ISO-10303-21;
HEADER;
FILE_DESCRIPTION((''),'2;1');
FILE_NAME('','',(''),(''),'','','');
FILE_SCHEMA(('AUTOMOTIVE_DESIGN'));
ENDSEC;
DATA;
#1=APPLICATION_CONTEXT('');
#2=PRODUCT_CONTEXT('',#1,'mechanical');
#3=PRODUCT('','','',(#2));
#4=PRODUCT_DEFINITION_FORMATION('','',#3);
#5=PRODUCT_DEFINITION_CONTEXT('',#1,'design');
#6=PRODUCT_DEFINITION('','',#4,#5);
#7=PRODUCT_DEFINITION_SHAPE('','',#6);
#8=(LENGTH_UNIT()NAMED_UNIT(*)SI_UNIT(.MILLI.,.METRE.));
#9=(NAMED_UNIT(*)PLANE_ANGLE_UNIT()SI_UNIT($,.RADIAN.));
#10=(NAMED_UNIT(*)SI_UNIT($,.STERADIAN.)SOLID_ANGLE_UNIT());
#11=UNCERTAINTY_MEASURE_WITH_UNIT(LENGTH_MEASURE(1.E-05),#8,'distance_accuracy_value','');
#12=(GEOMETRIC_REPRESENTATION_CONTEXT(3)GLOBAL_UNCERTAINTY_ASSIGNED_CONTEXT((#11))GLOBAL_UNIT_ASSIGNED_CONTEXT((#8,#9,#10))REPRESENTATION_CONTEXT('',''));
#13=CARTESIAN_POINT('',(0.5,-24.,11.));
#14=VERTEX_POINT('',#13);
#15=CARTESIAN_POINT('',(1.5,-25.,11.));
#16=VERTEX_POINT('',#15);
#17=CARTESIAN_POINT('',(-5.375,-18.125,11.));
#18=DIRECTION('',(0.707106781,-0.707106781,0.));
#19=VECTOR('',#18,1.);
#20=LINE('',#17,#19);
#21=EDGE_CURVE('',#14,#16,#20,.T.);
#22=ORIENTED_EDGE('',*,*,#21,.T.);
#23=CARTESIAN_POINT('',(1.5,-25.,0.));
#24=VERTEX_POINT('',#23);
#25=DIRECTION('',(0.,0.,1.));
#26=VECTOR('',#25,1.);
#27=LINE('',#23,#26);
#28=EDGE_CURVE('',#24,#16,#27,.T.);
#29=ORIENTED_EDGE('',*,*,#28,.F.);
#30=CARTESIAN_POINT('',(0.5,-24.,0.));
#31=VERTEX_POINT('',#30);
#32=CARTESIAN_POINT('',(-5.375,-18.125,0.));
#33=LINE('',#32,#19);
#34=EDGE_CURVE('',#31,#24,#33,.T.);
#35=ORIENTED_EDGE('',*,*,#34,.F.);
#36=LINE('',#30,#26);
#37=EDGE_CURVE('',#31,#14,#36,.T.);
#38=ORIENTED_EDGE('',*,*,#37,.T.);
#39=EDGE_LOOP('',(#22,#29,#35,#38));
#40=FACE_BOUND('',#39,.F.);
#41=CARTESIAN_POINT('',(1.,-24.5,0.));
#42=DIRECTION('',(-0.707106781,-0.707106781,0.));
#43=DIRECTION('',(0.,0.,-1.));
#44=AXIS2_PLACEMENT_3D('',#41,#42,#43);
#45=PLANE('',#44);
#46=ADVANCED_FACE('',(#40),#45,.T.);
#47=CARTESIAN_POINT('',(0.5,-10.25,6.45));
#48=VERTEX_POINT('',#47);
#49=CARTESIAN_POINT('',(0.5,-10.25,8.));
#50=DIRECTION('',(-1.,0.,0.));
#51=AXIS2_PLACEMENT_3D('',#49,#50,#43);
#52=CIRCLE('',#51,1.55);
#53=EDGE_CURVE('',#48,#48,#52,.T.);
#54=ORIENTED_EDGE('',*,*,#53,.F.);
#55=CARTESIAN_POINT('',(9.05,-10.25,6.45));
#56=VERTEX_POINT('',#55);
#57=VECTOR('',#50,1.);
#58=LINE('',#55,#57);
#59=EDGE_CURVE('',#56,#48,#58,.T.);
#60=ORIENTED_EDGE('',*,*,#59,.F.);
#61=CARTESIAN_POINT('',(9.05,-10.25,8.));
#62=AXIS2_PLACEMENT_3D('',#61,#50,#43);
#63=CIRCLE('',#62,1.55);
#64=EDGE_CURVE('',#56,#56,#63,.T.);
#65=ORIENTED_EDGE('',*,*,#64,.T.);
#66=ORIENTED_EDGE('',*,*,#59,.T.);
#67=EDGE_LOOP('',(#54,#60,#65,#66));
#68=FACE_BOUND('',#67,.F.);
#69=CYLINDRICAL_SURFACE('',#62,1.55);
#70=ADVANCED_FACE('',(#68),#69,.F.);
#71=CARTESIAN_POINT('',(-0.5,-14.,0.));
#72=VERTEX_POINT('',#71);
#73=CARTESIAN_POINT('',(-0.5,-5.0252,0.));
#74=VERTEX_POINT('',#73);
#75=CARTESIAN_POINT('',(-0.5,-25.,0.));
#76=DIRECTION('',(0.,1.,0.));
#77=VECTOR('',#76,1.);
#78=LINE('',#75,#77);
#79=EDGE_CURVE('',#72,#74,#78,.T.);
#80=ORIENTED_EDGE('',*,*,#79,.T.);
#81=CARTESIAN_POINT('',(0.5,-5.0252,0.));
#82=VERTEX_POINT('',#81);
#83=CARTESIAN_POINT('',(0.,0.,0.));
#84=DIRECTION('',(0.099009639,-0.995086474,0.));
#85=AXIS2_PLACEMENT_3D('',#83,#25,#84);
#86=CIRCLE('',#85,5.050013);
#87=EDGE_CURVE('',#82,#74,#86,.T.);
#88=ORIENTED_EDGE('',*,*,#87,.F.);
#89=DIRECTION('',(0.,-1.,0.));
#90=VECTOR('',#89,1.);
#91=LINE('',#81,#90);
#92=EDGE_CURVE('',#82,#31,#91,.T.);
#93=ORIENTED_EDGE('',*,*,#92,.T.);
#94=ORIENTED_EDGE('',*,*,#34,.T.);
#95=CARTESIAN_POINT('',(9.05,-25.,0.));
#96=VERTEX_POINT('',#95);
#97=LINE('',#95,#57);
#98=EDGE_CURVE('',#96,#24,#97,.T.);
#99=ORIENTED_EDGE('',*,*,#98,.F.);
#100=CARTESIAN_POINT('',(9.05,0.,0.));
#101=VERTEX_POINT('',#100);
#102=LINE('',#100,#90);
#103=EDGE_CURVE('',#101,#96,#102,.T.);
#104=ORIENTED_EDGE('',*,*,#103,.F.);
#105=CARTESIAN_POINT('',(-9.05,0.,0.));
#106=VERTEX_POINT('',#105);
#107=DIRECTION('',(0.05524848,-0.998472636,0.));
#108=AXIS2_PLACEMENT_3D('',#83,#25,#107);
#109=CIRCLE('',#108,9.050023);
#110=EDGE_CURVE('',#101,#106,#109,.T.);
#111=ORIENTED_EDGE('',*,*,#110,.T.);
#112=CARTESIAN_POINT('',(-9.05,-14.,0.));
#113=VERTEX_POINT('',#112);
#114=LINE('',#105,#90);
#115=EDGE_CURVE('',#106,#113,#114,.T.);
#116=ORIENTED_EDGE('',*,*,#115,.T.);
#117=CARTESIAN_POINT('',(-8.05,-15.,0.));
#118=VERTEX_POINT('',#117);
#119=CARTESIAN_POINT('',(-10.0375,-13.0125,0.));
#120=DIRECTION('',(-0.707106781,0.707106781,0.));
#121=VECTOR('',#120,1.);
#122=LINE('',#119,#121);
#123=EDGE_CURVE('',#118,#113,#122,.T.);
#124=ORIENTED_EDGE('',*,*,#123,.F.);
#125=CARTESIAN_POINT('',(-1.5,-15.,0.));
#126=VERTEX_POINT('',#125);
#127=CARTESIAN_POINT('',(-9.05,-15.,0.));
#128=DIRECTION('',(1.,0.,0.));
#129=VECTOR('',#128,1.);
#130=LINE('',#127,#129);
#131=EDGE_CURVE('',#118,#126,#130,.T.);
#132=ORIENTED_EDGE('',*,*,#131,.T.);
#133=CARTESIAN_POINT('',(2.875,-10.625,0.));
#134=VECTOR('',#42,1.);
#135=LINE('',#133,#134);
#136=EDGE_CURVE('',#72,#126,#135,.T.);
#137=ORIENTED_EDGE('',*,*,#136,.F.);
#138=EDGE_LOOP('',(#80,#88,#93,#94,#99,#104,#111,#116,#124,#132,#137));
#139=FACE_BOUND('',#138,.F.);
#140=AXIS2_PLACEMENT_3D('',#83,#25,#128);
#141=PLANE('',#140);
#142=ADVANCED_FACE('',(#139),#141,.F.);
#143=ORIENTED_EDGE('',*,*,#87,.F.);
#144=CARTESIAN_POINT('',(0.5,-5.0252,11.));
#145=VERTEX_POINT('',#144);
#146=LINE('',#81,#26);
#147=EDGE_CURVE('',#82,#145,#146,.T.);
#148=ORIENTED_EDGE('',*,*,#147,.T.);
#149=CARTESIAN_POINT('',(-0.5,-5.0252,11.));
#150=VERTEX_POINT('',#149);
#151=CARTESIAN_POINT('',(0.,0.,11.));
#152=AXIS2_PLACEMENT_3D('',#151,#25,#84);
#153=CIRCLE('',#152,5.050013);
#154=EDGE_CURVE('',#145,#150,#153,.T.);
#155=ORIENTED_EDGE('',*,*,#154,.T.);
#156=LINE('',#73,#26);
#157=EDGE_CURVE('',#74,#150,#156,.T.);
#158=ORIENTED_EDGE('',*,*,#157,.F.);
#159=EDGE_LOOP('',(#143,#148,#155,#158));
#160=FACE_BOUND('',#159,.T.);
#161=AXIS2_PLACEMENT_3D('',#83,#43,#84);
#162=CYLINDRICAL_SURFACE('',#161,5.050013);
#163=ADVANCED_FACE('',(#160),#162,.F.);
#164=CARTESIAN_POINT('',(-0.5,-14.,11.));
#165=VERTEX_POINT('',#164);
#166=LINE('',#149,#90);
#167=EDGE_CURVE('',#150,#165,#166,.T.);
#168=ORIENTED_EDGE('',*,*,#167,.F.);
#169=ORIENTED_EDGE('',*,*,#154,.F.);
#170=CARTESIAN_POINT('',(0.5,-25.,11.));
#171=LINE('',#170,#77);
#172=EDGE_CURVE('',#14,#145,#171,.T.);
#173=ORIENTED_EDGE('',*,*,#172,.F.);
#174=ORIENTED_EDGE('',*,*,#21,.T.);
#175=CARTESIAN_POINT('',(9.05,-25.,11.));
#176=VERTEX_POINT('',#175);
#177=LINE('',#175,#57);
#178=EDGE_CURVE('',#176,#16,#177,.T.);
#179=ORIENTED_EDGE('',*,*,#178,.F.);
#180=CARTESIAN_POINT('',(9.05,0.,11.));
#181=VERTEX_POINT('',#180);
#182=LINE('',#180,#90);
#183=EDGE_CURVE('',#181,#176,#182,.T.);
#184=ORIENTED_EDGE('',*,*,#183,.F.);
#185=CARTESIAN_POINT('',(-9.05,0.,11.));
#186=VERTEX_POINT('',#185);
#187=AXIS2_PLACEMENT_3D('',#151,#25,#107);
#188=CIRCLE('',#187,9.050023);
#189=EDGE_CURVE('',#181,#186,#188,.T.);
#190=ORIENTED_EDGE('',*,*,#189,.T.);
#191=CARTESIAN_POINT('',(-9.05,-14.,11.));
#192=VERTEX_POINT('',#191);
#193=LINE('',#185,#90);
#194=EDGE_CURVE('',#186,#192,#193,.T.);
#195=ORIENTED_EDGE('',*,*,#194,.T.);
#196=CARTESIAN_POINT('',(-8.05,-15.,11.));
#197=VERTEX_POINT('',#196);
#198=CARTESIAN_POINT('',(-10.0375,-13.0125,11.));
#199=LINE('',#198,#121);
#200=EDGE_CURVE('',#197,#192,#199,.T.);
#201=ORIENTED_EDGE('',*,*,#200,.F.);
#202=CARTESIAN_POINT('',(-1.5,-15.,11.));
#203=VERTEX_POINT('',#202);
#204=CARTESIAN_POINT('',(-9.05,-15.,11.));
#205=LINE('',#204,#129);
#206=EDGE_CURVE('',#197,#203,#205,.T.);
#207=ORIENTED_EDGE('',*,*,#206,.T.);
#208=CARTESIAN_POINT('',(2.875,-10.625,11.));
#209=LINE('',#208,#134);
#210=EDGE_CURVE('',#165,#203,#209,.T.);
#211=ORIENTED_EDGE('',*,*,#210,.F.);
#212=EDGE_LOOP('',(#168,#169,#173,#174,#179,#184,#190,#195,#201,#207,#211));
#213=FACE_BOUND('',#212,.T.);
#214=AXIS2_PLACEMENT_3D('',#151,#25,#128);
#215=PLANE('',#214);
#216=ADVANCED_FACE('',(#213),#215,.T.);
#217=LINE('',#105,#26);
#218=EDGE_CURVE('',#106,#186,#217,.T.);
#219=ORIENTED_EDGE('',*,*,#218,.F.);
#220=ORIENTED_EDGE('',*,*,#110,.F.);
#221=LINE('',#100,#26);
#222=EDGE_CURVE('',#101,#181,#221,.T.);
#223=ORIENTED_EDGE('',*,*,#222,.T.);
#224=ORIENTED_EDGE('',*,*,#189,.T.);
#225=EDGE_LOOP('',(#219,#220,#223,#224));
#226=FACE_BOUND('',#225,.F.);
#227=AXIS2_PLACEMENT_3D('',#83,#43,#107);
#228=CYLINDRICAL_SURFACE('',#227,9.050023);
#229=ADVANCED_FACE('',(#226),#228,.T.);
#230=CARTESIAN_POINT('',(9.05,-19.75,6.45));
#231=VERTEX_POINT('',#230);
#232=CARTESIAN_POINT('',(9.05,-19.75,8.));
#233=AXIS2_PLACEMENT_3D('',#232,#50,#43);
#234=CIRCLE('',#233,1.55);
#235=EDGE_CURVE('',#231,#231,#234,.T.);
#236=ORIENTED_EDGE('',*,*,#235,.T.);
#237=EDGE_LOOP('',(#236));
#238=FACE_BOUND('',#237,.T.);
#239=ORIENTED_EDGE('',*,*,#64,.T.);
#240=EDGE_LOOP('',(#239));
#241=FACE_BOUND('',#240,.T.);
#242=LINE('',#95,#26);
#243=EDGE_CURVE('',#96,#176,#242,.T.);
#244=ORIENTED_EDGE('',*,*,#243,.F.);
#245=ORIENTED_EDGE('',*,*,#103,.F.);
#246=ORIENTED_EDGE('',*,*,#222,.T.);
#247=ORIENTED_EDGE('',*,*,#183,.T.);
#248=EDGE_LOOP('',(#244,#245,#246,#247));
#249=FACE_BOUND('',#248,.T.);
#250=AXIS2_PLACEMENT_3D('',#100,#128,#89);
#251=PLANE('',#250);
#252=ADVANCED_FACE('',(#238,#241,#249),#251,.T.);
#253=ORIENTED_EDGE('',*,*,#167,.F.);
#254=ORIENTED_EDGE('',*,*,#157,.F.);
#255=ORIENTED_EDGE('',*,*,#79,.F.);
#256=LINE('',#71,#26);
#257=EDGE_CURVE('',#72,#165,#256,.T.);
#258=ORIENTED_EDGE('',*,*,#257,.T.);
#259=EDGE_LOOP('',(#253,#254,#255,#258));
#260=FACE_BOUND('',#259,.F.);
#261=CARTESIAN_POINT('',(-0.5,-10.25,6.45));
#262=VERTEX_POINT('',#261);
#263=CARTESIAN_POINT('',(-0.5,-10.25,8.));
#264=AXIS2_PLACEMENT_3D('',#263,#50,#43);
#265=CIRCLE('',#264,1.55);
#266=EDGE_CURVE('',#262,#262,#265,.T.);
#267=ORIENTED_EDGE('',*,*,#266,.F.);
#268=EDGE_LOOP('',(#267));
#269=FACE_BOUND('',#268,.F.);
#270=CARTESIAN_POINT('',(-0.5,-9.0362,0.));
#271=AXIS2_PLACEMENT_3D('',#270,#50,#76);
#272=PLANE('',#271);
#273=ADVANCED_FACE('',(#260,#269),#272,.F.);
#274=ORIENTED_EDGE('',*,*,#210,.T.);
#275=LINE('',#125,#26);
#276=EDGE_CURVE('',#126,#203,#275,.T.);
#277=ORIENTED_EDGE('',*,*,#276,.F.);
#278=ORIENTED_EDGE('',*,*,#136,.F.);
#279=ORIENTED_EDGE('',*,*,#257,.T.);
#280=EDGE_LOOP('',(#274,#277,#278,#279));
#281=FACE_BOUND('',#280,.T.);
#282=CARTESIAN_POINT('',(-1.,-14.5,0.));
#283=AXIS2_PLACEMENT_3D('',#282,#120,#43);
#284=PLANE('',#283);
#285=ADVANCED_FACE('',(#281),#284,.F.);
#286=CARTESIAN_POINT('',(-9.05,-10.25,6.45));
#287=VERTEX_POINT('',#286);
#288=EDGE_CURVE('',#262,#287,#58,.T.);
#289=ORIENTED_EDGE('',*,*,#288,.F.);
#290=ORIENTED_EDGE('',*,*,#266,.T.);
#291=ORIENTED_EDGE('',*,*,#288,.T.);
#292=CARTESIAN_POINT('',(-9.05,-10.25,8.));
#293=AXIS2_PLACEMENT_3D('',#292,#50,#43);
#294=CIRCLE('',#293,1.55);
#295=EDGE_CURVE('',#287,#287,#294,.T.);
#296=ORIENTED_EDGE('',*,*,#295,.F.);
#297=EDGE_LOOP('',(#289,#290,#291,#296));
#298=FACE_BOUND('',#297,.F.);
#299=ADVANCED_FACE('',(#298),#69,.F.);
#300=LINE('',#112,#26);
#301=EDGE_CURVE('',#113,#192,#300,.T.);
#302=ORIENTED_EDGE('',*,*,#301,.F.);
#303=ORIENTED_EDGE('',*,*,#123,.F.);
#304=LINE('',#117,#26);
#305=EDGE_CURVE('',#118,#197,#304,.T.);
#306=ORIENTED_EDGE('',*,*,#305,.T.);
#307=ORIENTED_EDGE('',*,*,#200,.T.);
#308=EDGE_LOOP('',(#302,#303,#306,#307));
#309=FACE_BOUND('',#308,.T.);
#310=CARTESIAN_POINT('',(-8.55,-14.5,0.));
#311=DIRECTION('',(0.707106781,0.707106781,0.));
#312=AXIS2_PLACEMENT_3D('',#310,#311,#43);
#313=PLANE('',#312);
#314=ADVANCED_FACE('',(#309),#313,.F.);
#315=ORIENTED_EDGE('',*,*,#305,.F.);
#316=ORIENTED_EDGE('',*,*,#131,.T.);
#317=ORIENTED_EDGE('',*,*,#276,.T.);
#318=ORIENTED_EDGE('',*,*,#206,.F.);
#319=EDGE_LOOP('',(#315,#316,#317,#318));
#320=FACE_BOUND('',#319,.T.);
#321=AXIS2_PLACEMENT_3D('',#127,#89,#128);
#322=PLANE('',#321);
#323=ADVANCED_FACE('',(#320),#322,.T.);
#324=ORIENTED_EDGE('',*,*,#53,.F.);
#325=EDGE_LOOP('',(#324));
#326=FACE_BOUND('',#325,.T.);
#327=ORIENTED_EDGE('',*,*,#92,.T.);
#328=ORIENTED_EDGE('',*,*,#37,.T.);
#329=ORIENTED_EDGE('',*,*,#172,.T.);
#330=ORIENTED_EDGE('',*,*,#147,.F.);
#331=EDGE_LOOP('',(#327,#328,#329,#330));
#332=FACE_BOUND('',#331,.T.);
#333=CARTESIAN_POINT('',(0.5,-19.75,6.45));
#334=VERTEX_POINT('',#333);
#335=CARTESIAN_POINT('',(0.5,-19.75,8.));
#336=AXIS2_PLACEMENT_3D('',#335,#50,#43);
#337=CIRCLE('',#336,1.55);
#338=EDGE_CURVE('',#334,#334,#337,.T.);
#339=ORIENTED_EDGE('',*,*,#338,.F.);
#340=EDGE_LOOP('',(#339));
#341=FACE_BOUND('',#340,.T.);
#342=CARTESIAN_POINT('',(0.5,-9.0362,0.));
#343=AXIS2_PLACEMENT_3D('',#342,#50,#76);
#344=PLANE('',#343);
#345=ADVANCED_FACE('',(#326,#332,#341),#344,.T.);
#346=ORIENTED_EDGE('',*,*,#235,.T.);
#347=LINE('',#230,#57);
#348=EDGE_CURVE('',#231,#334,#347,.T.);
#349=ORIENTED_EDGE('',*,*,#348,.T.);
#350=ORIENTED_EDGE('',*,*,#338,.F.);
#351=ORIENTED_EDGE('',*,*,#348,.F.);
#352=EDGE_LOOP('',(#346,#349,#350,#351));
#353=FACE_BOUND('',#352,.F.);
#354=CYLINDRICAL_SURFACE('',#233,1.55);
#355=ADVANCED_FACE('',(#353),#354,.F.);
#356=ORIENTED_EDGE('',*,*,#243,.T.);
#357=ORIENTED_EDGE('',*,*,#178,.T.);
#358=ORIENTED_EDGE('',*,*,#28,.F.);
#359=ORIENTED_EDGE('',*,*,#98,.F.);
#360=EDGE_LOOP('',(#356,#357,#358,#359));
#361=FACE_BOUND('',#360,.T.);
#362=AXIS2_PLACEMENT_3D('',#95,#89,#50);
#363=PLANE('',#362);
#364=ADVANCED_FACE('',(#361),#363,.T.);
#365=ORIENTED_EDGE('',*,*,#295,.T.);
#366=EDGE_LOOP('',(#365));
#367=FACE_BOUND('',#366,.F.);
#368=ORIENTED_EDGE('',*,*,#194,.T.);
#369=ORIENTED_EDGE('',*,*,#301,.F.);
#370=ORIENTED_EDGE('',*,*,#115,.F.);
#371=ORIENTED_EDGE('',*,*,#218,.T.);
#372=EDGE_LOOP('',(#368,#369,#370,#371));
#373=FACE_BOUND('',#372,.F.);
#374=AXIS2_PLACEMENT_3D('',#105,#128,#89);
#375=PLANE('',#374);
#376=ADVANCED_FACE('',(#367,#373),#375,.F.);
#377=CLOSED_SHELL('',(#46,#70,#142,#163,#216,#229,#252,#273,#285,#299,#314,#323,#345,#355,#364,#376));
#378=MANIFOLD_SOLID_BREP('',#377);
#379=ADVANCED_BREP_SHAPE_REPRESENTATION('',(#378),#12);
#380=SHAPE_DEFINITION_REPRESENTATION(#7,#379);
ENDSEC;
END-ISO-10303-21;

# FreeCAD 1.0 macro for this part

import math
import FreeCAD as App
import Part
import Sketcher
Q = App.Units.Quantity


def edges_at(feature, points):
    """Names of the edges that pass closest to the given points."""
    edges = feature.Shape.Edges
    near = lambda p: min(range(len(edges)), key=lambda i: edges[i].distToShape(Part.Vertex(*p))[0])
    return sorted({f"Edge{near(p) + 1}" for p in points})


def add_polygon(sketch, points):
    """Adds a closed chain of lines whose ends are joined by coincident constraints."""
    first, n = sketch.GeometryCount, len(points)
    for a, b in zip(points, points[1:] + points[:1]):
        sketch.addGeometry(Part.LineSegment(App.Vector(*a, 0), App.Vector(*b, 0)), False)
    for i in range(n):
        sketch.addConstraint(Sketcher.Constraint("Coincident", first + i, 2, first + (i + 1) % n, 1))

doc = App.newDocument("Part")
body = doc.addObject("PartDesign::Body", "Body")

sketch1 = doc.addObject("Sketcher::SketchObject", "Sketch")
body.addObject(sketch1)
sketch1.AttachmentSupport = (doc.XY_Plane, [""])
sketch1.MapMode = "FlatFace"
sketch1.addGeometry([
    Part.ArcOfCircle(Part.Circle(App.Vector(0, 0, 0), App.Vector(0, 0, 1), 5.1), math.radians(-84), math.radians(264)),
    Part.LineSegment(App.Vector(0.5, -5, 0), App.Vector(0.5, -25, 0)),
    Part.LineSegment(App.Vector(0.5, -25, 0), App.Vector(9.1, -25, 0)),
    Part.LineSegment(App.Vector(9.1, -25, 0), App.Vector(9.1, 0, 0)),
    Part.ArcOfCircle(Part.Circle(App.Vector(0, 0, 0), App.Vector(0, 0, 1), 9.1), math.radians(0), math.radians(180)),
    Part.LineSegment(App.Vector(-9.1, 0, 0), App.Vector(-9.1, -25, 0)),
    Part.LineSegment(App.Vector(-9.1, -25, 0), App.Vector(-0.5, -25, 0)),
    Part.LineSegment(App.Vector(-0.5, -25, 0), App.Vector(-0.5, -5, 0)),
], False)
sketch1.addConstraint([
    Sketcher.Constraint("Coincident", 0, 1, 1, 1),
    Sketcher.Constraint("Coincident", 1, 2, 2, 1),
    Sketcher.Constraint("Coincident", 2, 2, 3, 1),
    Sketcher.Constraint("Tangent", 3, 2, 4, 1),
    Sketcher.Constraint("Tangent", 4, 2, 5, 1),
    Sketcher.Constraint("Coincident", 5, 2, 6, 1),
    Sketcher.Constraint("Coincident", 6, 2, 7, 1),
    Sketcher.Constraint("Coincident", 7, 2, 0, 2),
    Sketcher.Constraint("Vertical", 1),
    Sketcher.Constraint("Horizontal", 2),
    Sketcher.Constraint("Vertical", 3),
    Sketcher.Constraint("Vertical", 5),
    Sketcher.Constraint("Horizontal", 6),
    Sketcher.Constraint("Vertical", 7),
    Sketcher.Constraint("Coincident", 0, 3, -1, 1),
    Sketcher.Constraint("Coincident", 4, 3, -1, 1),
    Sketcher.Constraint("Symmetric", 1, 2, 6, 2, -2),
    Sketcher.Constraint("DistanceY", 3, 1, 3, 2, Q("25 mm")),
    Sketcher.Constraint("Radius", 0, Q("5.05 mm")),
    Sketcher.Constraint("DistanceX", 6, 2, 1, 2, Q("1 mm")),
    Sketcher.Constraint("DistanceX", 2, 1, 2, 2, Q("8.55 mm")),
])
pad1 = doc.addObject("PartDesign::Pad", "Pad")
body.addObject(pad1)
pad1.Profile = sketch1
pad1.Length = 11

sketch2 = doc.addObject("Sketcher::SketchObject", "Sketch001")
body.addObject(sketch2)
sketch2.AttachmentSupport = (doc.YZ_Plane, [""])
sketch2.MapMode = "FlatFace"
sketch2.AttachmentOffset = App.Placement(App.Vector(0, 0, 9.05), App.Rotation())
sketch2.addGeometry([
    Part.Circle(App.Vector(-19.8, 8, 0), App.Vector(0, 0, 1), 1.6),
    Part.Circle(App.Vector(-10.2, 8, 0), App.Vector(0, 0, 1), 1.6),
], False)
sketch2.addConstraint([
    Sketcher.Constraint("Equal", 0, 1),
    Sketcher.Constraint("Horizontal", 0, 3, 1, 3),
    Sketcher.Constraint("Diameter", 0, Q("3.1 mm")),
    Sketcher.Constraint("DistanceY", -1, 1, 0, 3, Q("8 mm")),
    Sketcher.Constraint("DistanceX", 0, 3, 1, 3, Q("9.5 mm")),
    Sketcher.Constraint("DistanceX", 0, 3, -1, 1, Q("19.75 mm")),
])
doc.recompute()
hole = doc.addObject("PartDesign::Hole", "Hole")
body.addObject(hole)
hole.Profile = sketch2
hole.ThreadType = "None"
hole.Diameter = 3.1
hole.DepthType = "ThroughAll"

sketch3 = doc.addObject("Sketcher::SketchObject", "Sketch002")
body.addObject(sketch3)
sketch3.AttachmentSupport = (doc.XZ_Plane, [""])
sketch3.MapMode = "FlatFace"
sketch3.AttachmentOffset = App.Placement(App.Vector(0, 0, 25), App.Rotation())
add_polygon(sketch3, [(-9, 11), (-9, 0), (0, 0), (0, 11)])
sketch3.addConstraint([
    Sketcher.Constraint("Vertical", 0),
    Sketcher.Constraint("Horizontal", 1),
    Sketcher.Constraint("Vertical", 2),
    Sketcher.Constraint("Horizontal", 3),
    Sketcher.Constraint("PointOnObject", 0, 2, -1),
    Sketcher.Constraint("DistanceY", 0, 2, 0, 1, Q("11 mm")),
    Sketcher.Constraint("DistanceX", 1, 1, 1, 2, Q("8.55 mm")),
    Sketcher.Constraint("DistanceX", 1, 2, -1, 1, Q("0.5 mm")),
])
pocket1 = doc.addObject("PartDesign::Pocket", "Pocket")
body.addObject(pocket1)
pocket1.Profile = sketch3
pocket1.Length = 10
doc.recompute()

chamfer = doc.addObject("PartDesign::Chamfer", "Chamfer")
body.addObject(chamfer)
chamfer.Base = (pocket1, edges_at(pocket1, [(-9.05, -15, 5.5), (-0.5, -15, 5.5), (0.5, -25, 5.5)]))
chamfer.Size = 1

doc.recompute()
